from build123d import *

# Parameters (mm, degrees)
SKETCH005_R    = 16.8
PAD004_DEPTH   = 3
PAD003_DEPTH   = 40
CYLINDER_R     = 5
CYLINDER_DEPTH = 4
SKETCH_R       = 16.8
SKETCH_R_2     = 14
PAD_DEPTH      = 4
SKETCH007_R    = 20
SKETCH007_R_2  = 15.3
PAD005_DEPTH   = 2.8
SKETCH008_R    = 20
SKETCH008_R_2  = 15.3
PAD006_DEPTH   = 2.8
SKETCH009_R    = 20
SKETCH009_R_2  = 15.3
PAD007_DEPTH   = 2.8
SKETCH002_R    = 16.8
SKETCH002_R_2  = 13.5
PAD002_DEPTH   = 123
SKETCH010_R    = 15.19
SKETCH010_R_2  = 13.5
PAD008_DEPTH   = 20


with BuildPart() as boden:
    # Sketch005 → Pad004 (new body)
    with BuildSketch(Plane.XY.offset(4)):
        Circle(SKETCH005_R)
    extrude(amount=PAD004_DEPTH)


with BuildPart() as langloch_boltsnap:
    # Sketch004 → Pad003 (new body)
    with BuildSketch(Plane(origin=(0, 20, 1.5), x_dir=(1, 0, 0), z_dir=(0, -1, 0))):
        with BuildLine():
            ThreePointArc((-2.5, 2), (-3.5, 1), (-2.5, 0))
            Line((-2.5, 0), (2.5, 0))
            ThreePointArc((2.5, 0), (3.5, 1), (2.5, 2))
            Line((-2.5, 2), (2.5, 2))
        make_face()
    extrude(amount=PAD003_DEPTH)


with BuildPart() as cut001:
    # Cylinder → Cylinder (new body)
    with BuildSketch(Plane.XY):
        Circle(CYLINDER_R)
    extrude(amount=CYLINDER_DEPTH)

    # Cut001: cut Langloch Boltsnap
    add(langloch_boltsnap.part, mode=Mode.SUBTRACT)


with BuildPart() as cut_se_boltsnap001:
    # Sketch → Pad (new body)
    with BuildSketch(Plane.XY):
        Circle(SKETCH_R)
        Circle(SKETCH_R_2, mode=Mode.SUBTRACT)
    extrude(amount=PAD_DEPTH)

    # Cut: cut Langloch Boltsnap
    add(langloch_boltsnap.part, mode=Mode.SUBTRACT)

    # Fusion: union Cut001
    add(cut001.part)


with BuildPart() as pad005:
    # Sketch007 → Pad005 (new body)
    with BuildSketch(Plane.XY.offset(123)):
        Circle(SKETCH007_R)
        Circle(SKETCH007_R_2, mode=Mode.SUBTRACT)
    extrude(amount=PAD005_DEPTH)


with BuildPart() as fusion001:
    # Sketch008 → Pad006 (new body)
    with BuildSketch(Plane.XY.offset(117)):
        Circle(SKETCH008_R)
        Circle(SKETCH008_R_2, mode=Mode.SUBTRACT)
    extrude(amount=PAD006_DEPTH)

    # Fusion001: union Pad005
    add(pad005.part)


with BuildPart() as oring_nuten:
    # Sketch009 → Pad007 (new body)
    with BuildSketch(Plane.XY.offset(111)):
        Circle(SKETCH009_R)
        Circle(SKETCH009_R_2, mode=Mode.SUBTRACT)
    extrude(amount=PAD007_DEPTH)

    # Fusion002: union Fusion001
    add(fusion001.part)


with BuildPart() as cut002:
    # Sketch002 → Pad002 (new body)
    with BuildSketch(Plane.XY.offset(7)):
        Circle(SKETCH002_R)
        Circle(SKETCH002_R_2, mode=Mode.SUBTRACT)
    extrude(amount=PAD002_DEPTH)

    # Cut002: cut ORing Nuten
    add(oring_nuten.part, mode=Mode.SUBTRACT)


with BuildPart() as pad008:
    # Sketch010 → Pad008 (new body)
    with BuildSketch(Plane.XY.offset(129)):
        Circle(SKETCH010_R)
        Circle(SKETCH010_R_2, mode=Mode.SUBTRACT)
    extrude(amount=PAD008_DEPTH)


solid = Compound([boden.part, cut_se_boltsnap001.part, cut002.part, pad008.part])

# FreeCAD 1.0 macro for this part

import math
import FreeCAD as App
import Part
import Sketcher

V = App.Vector
Q = App.Units.Quantity

doc = App.newDocument("Part")
params = doc.addObject("Spreadsheet::Sheet", "Params")
for row, (alias, value) in enumerate([
    ("sketch1_diameter", "33.6 mm"),
    ("pad1_length", "3 mm"),
    ("sketch2_radius", "1 mm"),
    ("sketch2_width", "5 mm"),
    ("pad2_length", "40 mm"),
    ("sketch3_diameter", "10 mm"),
    ("pad3_length", "4 mm"),
    ("sketch4_diameter", "28 mm"),
    ("sketch4_diameter2", "33.6 mm"),
    ("pad4_length", "4 mm"),
    ("sketch5_diameter", "40 mm"),
    ("sketch5_diameter2", "30.6 mm"),
    ("pad5_length", "2.8 mm"),
    ("sketch6_diameter", "40 mm"),
    ("sketch6_diameter2", "30.6 mm"),
    ("pad6_length", "2.8 mm"),
    ("sketch7_diameter", "40 mm"),
    ("sketch7_diameter2", "30.6 mm"),
    ("pad7_length", "2.8 mm"),
    ("sketch8_diameter", "27 mm"),
    ("sketch8_diameter2", "33.6 mm"),
    ("pad8_length", "123 mm"),
    ("sketch9_diameter", "27 mm"),
    ("sketch9_diameter2", "30.38 mm"),
    ("pad9_length", "20 mm"),
], start=1):
    params.set(f"A{row}", alias)
    params.set(f"B{row}", "=" + value)
    params.setAlias(f"B{row}", alias)

body = doc.addObject("PartDesign::Body", "Body")

sketch1 = doc.addObject("Sketcher::SketchObject", "Sketch")
body.addObject(sketch1)
sketch1.AttachmentSupport = (doc.XY_Plane, [""])
sketch1.MapMode = "FlatFace"
sketch1.AttachmentOffset = App.Placement(V(0, 0, 4), App.Rotation())
sketch1.addGeometry(Part.Circle(V(0, 0, 0), V(0, 0, 1), 16.8), False)
sketch1.addConstraint([
    Sketcher.Constraint("Coincident", 0, 3, -1, 1),
    Sketcher.Constraint("Diameter", 0, Q("33.6 mm")),
])
sketch1.setExpression("Constraints[1]", "Params.sketch1_diameter")
pad1 = doc.addObject("PartDesign::Pad", "Pad")
body.addObject(pad1)
pad1.Profile = sketch1
pad1.setExpression("Length", "Params.pad1_length")
body2 = doc.addObject("PartDesign::Body", "Body001")

sketch2 = doc.addObject("Sketcher::SketchObject", "Sketch001")
body2.addObject(sketch2)
sketch2.AttachmentSupport = (doc.getObject("XZ_Plane001"), [""])
sketch2.MapMode = "FlatFace"
sketch2.AttachmentOffset = App.Placement(V(0, 0, -20), App.Rotation())
sketch2.addGeometry([
    Part.ArcOfCircle(Part.Circle(V(-2.5, 2.5, 0), V(0, 0, 1), 1), math.radians(90), math.radians(270)),
    Part.LineSegment(V(-2.5, 1.5, 0), V(2.5, 1.5, 0)),
    Part.ArcOfCircle(Part.Circle(V(2.5, 2.5, 0), V(0, 0, 1), 1), math.radians(-90), math.radians(90)),
    Part.LineSegment(V(2.5, 3.5, 0), V(-2.5, 3.5, 0)),
], False)
sketch2.addConstraint([
    Sketcher.Constraint("Tangent", 0, 2, 1, 1),
    Sketcher.Constraint("Tangent", 1, 2, 2, 1),
    Sketcher.Constraint("Tangent", 2, 2, 3, 1),
    Sketcher.Constraint("Tangent", 3, 2, 0, 1),
    Sketcher.Constraint("Horizontal", 1),
    Sketcher.Constraint("Horizontal", 3),
    Sketcher.Constraint("Radius", 0, Q("1 mm")),
    Sketcher.Constraint("DistanceX", 1, 1, 1, 2, Q("5 mm")),
    Sketcher.Constraint("DistanceX", 0, 3, -1, 1, Q("2.5 mm")),
    Sketcher.Constraint("DistanceY", -1, 1, 0, 3, Q("2.5 mm")),
])
sketch2.setExpression("Constraints[6]", "Params.sketch2_radius")
sketch2.setExpression("Constraints[7]", "Params.sketch2_width")
pad2 = doc.addObject("PartDesign::Pad", "Pad001")
body2.addObject(pad2)
pad2.Profile = sketch2
pad2.setExpression("Length", "Params.pad2_length")
body3 = doc.addObject("PartDesign::Body", "Body002")

sketch3 = doc.addObject("Sketcher::SketchObject", "Sketch002")
body3.addObject(sketch3)
sketch3.AttachmentSupport = (doc.getObject("XY_Plane002"), [""])
sketch3.MapMode = "FlatFace"
sketch3.addGeometry(Part.Circle(V(0, 0, 0), V(0, 0, 1), 5), False)
sketch3.addConstraint([
    Sketcher.Constraint("Coincident", 0, 3, -1, 1),
    Sketcher.Constraint("Diameter", 0, Q("10 mm")),
])
sketch3.setExpression("Constraints[1]", "Params.sketch3_diameter")
pad3 = doc.addObject("PartDesign::Pad", "Pad002")
body3.addObject(pad3)
pad3.Profile = sketch3
pad3.setExpression("Length", "Params.pad3_length")
doc.recompute()

body4 = doc.addObject("PartDesign::Body", "Body003")
body4.BaseFeature = body2
boolean = doc.addObject("PartDesign::Boolean", "Boolean")
body3.addObject(boolean)
boolean.Type = "Cut"
boolean.addObjects([body4])
doc.recompute()
body5 = doc.addObject("PartDesign::Body", "Body004")
body5.AllowCompound = True

sketch4 = doc.addObject("Sketcher::SketchObject", "Sketch003")
body5.addObject(sketch4)
sketch4.AttachmentSupport = (doc.getObject("XY_Plane004"), [""])
sketch4.MapMode = "FlatFace"
sketch4.addGeometry([
    Part.Circle(V(0, 0, 0), V(0, 0, 1), 16.8),
    Part.Circle(V(0, 0, 0), V(0, 0, 1), 14),
], False)
sketch4.addConstraint([
    Sketcher.Constraint("Coincident", 0, 3, -1, 1),
    Sketcher.Constraint("Coincident", 1, 3, -1, 1),
    Sketcher.Constraint("Diameter", 1, Q("28 mm")),
    Sketcher.Constraint("Diameter", 0, Q("33.6 mm")),
])
sketch4.setExpression("Constraints[2]", "Params.sketch4_diameter")
sketch4.setExpression("Constraints[3]", "Params.sketch4_diameter2")
pad4 = doc.addObject("PartDesign::Pad", "Pad003")
body5.addObject(pad4)
pad4.Profile = sketch4
pad4.setExpression("Length", "Params.pad4_length")
doc.recompute()

boolean2 = doc.addObject("PartDesign::Boolean", "Boolean001")
body5.addObject(boolean2)
boolean2.Type = "Cut"
boolean2.addObjects([body2])
doc.recompute()

boolean3 = doc.addObject("PartDesign::Boolean", "Boolean002")
body5.addObject(boolean3)
boolean3.Type = "Fuse"
boolean3.addObjects([body3])
body6 = doc.addObject("PartDesign::Body", "Body005")

sketch5 = doc.addObject("Sketcher::SketchObject", "Sketch004")
body6.addObject(sketch5)
sketch5.AttachmentSupport = (doc.getObject("XY_Plane005"), [""])
sketch5.MapMode = "FlatFace"
sketch5.AttachmentOffset = App.Placement(V(0, 0, 123), App.Rotation())
sketch5.addGeometry([
    Part.Circle(V(0, 0, 0), V(0, 0, 1), 20),
    Part.Circle(V(0, 0, 0), V(0, 0, 1), 15.3),
], False)
sketch5.addConstraint([
    Sketcher.Constraint("Coincident", 0, 3, -1, 1),
    Sketcher.Constraint("Coincident", 1, 3, -1, 1),
    Sketcher.Constraint("Diameter", 0, Q("40 mm")),
    Sketcher.Constraint("Diameter", 1, Q("30.6 mm")),
])
sketch5.setExpression("Constraints[2]", "Params.sketch5_diameter")
sketch5.setExpression("Constraints[3]", "Params.sketch5_diameter2")
pad5 = doc.addObject("PartDesign::Pad", "Pad004")
body6.addObject(pad5)
pad5.Profile = sketch5
pad5.setExpression("Length", "Params.pad5_length")
body7 = doc.addObject("PartDesign::Body", "Body006")
body7.AllowCompound = True

sketch6 = doc.addObject("Sketcher::SketchObject", "Sketch005")
body7.addObject(sketch6)
sketch6.AttachmentSupport = (doc.getObject("XY_Plane006"), [""])
sketch6.MapMode = "FlatFace"
sketch6.AttachmentOffset = App.Placement(V(0, 0, 117), App.Rotation())
sketch6.addGeometry([
    Part.Circle(V(0, 0, 0), V(0, 0, 1), 20),
    Part.Circle(V(0, 0, 0), V(0, 0, 1), 15.3),
], False)
sketch6.addConstraint([
    Sketcher.Constraint("Coincident", 0, 3, -1, 1),
    Sketcher.Constraint("Coincident", 1, 3, -1, 1),
    Sketcher.Constraint("Diameter", 0, Q("40 mm")),
    Sketcher.Constraint("Diameter", 1, Q("30.6 mm")),
])
sketch6.setExpression("Constraints[2]", "Params.sketch6_diameter")
sketch6.setExpression("Constraints[3]", "Params.sketch6_diameter2")
pad6 = doc.addObject("PartDesign::Pad", "Pad005")
body7.addObject(pad6)
pad6.Profile = sketch6
pad6.setExpression("Length", "Params.pad6_length")
doc.recompute()

boolean4 = doc.addObject("PartDesign::Boolean", "Boolean003")
body7.addObject(boolean4)
boolean4.Type = "Fuse"
boolean4.addObjects([body6])
body8 = doc.addObject("PartDesign::Body", "Body007")
body8.AllowCompound = True

sketch7 = doc.addObject("Sketcher::SketchObject", "Sketch006")
body8.addObject(sketch7)
sketch7.AttachmentSupport = (doc.getObject("XY_Plane007"), [""])
sketch7.MapMode = "FlatFace"
sketch7.AttachmentOffset = App.Placement(V(0, 0, 111), App.Rotation())
sketch7.addGeometry([
    Part.Circle(V(0, 0, 0), V(0, 0, 1), 20),
    Part.Circle(V(0, 0, 0), V(0, 0, 1), 15.3),
], False)
sketch7.addConstraint([
    Sketcher.Constraint("Coincident", 0, 3, -1, 1),
    Sketcher.Constraint("Coincident", 1, 3, -1, 1),
    Sketcher.Constraint("Diameter", 0, Q("40 mm")),
    Sketcher.Constraint("Diameter", 1, Q("30.6 mm")),
])
sketch7.setExpression("Constraints[2]", "Params.sketch7_diameter")
sketch7.setExpression("Constraints[3]", "Params.sketch7_diameter2")
pad7 = doc.addObject("PartDesign::Pad", "Pad006")
body8.addObject(pad7)
pad7.Profile = sketch7
pad7.setExpression("Length", "Params.pad7_length")
doc.recompute()

boolean5 = doc.addObject("PartDesign::Boolean", "Boolean004")
body8.addObject(boolean5)
boolean5.Type = "Fuse"
boolean5.addObjects([body7])
body9 = doc.addObject("PartDesign::Body", "Body008")

sketch8 = doc.addObject("Sketcher::SketchObject", "Sketch007")
body9.addObject(sketch8)
sketch8.AttachmentSupport = (doc.getObject("XY_Plane008"), [""])
sketch8.MapMode = "FlatFace"
sketch8.AttachmentOffset = App.Placement(V(0, 0, 7), App.Rotation())
sketch8.addGeometry([
    Part.Circle(V(0, 0, 0), V(0, 0, 1), 16.8),
    Part.Circle(V(0, 0, 0), V(0, 0, 1), 13.5),
], False)
sketch8.addConstraint([
    Sketcher.Constraint("Coincident", 0, 3, -1, 1),
    Sketcher.Constraint("Coincident", 1, 3, -1, 1),
    Sketcher.Constraint("Diameter", 1, Q("27 mm")),
    Sketcher.Constraint("Diameter", 0, Q("33.6 mm")),
])
sketch8.setExpression("Constraints[2]", "Params.sketch8_diameter")
sketch8.setExpression("Constraints[3]", "Params.sketch8_diameter2")
pad8 = doc.addObject("PartDesign::Pad", "Pad007")
body9.addObject(pad8)
pad8.Profile = sketch8
pad8.setExpression("Length", "Params.pad8_length")
doc.recompute()

boolean6 = doc.addObject("PartDesign::Boolean", "Boolean005")
body9.addObject(boolean6)
boolean6.Type = "Cut"
boolean6.addObjects([body8])
body10 = doc.addObject("PartDesign::Body", "Body009")

sketch9 = doc.addObject("Sketcher::SketchObject", "Sketch008")
body10.addObject(sketch9)
sketch9.AttachmentSupport = (doc.getObject("XY_Plane009"), [""])
sketch9.MapMode = "FlatFace"
sketch9.AttachmentOffset = App.Placement(V(0, 0, 129), App.Rotation())
sketch9.addGeometry([
    Part.Circle(V(0, 0, 0), V(0, 0, 1), 15.19),
    Part.Circle(V(0, 0, 0), V(0, 0, 1), 13.5),
], False)
sketch9.addConstraint([
    Sketcher.Constraint("Coincident", 0, 3, -1, 1),
    Sketcher.Constraint("Coincident", 1, 3, -1, 1),
    Sketcher.Constraint("Diameter", 1, Q("27 mm")),
    Sketcher.Constraint("Diameter", 0, Q("30.38 mm")),
])
sketch9.setExpression("Constraints[2]", "Params.sketch9_diameter")
sketch9.setExpression("Constraints[3]", "Params.sketch9_diameter2")
pad9 = doc.addObject("PartDesign::Pad", "Pad008")
body10.addObject(pad9)
pad9.Profile = sketch9
pad9.setExpression("Length", "Params.pad9_length")

doc.recompute()
